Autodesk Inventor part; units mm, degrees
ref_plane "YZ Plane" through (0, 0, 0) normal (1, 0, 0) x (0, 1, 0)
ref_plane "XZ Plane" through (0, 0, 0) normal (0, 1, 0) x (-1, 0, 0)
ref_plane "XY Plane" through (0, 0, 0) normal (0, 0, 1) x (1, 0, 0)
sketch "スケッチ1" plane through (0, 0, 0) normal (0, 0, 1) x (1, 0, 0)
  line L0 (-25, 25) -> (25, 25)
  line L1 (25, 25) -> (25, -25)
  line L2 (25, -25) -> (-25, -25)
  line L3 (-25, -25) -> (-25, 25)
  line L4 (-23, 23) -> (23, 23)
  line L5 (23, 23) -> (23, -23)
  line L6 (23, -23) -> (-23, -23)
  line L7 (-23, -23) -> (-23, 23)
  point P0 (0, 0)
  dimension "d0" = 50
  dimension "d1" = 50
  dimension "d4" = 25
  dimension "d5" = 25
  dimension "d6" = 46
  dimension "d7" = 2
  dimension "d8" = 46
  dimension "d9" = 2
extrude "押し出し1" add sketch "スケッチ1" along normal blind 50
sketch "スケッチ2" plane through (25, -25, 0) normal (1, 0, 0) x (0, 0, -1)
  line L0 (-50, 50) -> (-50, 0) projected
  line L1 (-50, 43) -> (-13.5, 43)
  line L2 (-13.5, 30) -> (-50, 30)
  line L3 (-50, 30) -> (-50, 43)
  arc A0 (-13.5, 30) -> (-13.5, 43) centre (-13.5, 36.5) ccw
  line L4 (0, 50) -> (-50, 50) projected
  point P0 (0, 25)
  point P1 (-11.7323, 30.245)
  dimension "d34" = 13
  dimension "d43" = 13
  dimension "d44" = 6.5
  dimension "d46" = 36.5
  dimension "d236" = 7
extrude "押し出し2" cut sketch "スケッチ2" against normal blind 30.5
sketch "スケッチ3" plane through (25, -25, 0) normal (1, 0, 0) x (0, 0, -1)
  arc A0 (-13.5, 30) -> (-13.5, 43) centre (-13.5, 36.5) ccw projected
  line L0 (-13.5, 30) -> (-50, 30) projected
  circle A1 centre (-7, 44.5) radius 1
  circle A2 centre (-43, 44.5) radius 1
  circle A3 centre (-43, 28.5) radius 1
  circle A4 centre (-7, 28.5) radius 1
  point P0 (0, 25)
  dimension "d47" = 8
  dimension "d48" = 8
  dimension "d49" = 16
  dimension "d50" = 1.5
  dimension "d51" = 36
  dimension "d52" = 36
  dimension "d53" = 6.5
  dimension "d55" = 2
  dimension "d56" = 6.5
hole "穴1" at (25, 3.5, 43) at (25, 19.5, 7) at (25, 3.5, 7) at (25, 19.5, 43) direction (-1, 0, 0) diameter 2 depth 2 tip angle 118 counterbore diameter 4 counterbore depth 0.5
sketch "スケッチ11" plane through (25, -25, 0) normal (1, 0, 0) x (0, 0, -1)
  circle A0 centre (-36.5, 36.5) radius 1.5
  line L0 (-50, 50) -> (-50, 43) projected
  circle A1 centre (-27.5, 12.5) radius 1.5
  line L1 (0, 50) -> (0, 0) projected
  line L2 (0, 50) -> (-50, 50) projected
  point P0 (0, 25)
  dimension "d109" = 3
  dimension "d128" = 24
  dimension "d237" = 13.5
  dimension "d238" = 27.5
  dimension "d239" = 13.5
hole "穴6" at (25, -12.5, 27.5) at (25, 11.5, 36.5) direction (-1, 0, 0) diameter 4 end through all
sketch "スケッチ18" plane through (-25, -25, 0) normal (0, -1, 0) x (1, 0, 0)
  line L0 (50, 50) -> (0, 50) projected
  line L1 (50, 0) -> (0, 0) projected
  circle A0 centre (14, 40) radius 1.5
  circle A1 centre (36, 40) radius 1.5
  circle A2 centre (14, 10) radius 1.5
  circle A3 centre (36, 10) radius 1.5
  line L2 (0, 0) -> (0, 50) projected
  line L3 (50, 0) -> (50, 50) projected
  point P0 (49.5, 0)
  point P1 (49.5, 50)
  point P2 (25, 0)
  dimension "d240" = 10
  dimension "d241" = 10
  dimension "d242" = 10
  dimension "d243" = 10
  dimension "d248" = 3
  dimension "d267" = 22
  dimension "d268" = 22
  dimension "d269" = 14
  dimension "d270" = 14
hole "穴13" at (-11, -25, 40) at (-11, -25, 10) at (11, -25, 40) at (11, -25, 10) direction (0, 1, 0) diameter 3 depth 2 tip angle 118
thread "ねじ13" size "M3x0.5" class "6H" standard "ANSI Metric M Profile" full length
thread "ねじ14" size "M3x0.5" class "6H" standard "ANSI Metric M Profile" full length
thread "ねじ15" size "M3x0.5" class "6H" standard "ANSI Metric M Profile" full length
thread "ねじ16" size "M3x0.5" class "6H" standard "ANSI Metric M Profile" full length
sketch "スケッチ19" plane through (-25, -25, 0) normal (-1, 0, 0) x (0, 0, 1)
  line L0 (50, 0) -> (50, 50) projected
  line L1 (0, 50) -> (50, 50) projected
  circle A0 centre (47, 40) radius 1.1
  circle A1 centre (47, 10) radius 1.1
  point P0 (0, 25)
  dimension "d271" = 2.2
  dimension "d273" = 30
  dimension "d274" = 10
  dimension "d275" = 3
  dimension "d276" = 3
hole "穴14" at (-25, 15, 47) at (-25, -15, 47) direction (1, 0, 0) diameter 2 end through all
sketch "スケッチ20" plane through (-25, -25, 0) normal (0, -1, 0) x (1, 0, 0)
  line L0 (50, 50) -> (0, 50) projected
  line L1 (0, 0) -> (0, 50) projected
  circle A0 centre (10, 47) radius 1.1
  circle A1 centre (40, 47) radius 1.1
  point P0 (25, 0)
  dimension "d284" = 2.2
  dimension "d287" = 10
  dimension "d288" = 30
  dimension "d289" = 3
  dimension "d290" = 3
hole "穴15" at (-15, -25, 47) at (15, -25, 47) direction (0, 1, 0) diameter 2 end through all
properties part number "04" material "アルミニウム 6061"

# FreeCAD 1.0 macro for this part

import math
import FreeCAD as App
import Part
import Sketcher
from FreeCAD import Vector
Q = App.Units.Quantity


def add_polygon(sketch, points):
    """Adds a closed chain of lines whose ends are joined by coincident constraints."""
    first, n = sketch.GeometryCount, len(points)
    for a, b in zip(points, points[1:] + points[:1]):
        sketch.addGeometry(Part.LineSegment(App.Vector(*a, 0), App.Vector(*b, 0)), False)
    for i in range(n):
        sketch.addConstraint(Sketcher.Constraint("Coincident", first + i, 2, first + (i + 1) % n, 1))

doc = App.newDocument("Part")
params = doc.addObject("Spreadsheet::Sheet", "Params")
for row, (alias, value) in enumerate([
    ("sketch1_width", "50 mm"),
    ("sketch1_width2", "46 mm"),
    ("pad1_length", "50 mm"),
    ("sketch2_radius", "6.5 mm"),
    ("sketch2_height", "36.5 mm"),
    ("pocket1_length", "30.5 mm"),
    ("sketch3_diameter", "2 mm"),
    ("hole_diameter", "2 mm"),
    ("hole_depth", "2 mm"),
    ("hole_cbore_diameter", "4 mm"),
    ("hole_cbore_depth", "0.5 mm"),
    ("sketch4_diameter", "4 mm"),
    ("hole2_diameter", "4 mm"),
    ("sketch5_diameter", "3 mm"),
    ("hole3_diameter", "3 mm"),
    ("hole3_depth", "2 mm"),
    ("sketch6_diameter", "2 mm"),
    ("hole4_diameter", "2 mm"),
    ("sketch7_diameter", "2 mm"),
    ("hole5_diameter", "2 mm"),
], start=1):
    params.set(f"A{row}", alias)
    params.set(f"B{row}", "=" + value)
    params.setAlias(f"B{row}", alias)

body = doc.addObject("PartDesign::Body", "Body")

# Sketch on XY plane
sketch1 = body.newObject("Sketcher::SketchObject", "Sketch")
sketch1.AttachmentSupport = (doc.getObject("XY_Plane"), [""])
sketch1.MapMode = "FlatFace"
add_polygon(sketch1, [(25, 25), (-25, 25), (-25, -25), (25, -25)])  # lines 0-3
add_polygon(sketch1, [(-23, -23), (-23, 23), (23, 23), (23, -23)])  # lines 4-7
sketch1.addConstraint(Sketcher.Constraint("Horizontal", 0))
sketch1.addConstraint(Sketcher.Constraint("Vertical", 1))
sketch1.addConstraint(Sketcher.Constraint("Horizontal", 2))
sketch1.addConstraint(Sketcher.Constraint("Vertical", 3))
sketch1.addConstraint(Sketcher.Constraint("Vertical", 4))
sketch1.addConstraint(Sketcher.Constraint("Horizontal", 5))
sketch1.addConstraint(Sketcher.Constraint("Vertical", 6))
sketch1.addConstraint(Sketcher.Constraint("Horizontal", 7))
sketch1.addConstraint(Sketcher.Constraint("Symmetric", 0, 2, 2, 2, -1, 1))
sketch1.addConstraint(Sketcher.Constraint("Symmetric", 4, 2, 6, 2, -1, 1))
sketch1.addConstraint(Sketcher.Constraint("Equal", 2, 1))
sketch1.addConstraint(Sketcher.Constraint("Equal", 7, 4))
sketch1.addConstraint(Sketcher.Constraint("DistanceX", 0, 2, 0, 1, Q("50 mm")))
sketch1.addConstraint(Sketcher.Constraint("DistanceX", 5, 1, 5, 2, Q("46 mm")))
sketch1.setExpression("Constraints[20]", "Params.sketch1_width")
sketch1.setExpression("Constraints[21]", "Params.sketch1_width2")
pad1 = body.newObject("PartDesign::Pad", "Pad")
pad1.Profile = sketch1
pad1.setExpression("Length", "Params.pad1_length")

# Sketch on YZ plane
sketch2 = body.newObject("Sketcher::SketchObject", "Sketch001")
sketch2.AttachmentSupport = (doc.getObject("YZ_Plane"), [""])
sketch2.MapMode = "FlatFace"
sketch2.AttachmentOffset = App.Placement(Vector(0, 0, 25), App.Rotation())
sketch2.addGeometry(Part.LineSegment(Vector(18, 14, 0), Vector(18, 50, 0)), False)
sketch2.addGeometry(Part.LineSegment(Vector(18, 50, 0), Vector(5, 50, 0)), False)
sketch2.addGeometry(Part.LineSegment(Vector(5, 50, 0), Vector(5, 14, 0)), False)
sketch2.addGeometry(Part.ArcOfCircle(Part.Circle(Vector(12, 14, 0), Vector(0, 0, 1), 6), math.radians(180), math.radians(360)), False)
sketch2.addConstraint(Sketcher.Constraint("Coincident", 0, 2, 1, 1))
sketch2.addConstraint(Sketcher.Constraint("Coincident", 1, 2, 2, 1))
sketch2.addConstraint(Sketcher.Constraint("Tangent", 2, 2, 3, 1))
sketch2.addConstraint(Sketcher.Constraint("Tangent", 3, 2, 0, 1))
sketch2.addConstraint(Sketcher.Constraint("Vertical", 0))
sketch2.addConstraint(Sketcher.Constraint("Horizontal", 1))
sketch2.addConstraint(Sketcher.Constraint("Vertical", 2))
sketch2.addConstraint(Sketcher.Constraint("Radius", 3, Q("6.5 mm")))
sketch2.addConstraint(Sketcher.Constraint("DistanceY", 0, 1, 0, 2, Q("36.5 mm")))
sketch2.addConstraint(Sketcher.Constraint("DistanceX", -1, 1, 0, 2, Q("18 mm")))
sketch2.addConstraint(Sketcher.Constraint("DistanceY", -1, 1, 0, 2, Q("50 mm")))
sketch2.setExpression("Constraints[7]", "Params.sketch2_radius")
sketch2.setExpression("Constraints[8]", "Params.sketch2_height")
pocket1 = body.newObject("PartDesign::Pocket", "Pocket")
pocket1.Profile = sketch2
pocket1.setExpression("Length", "Params.pocket1_length")

# Sketch on YZ plane
sketch3 = body.newObject("Sketcher::SketchObject", "Sketch002")
sketch3.AttachmentSupport = (doc.getObject("YZ_Plane"), [""])
sketch3.MapMode = "FlatFace"
sketch3.AttachmentOffset = App.Placement(Vector(0, 0, 25), App.Rotation())
sketch3.addGeometry(Part.Circle(Vector(3.5, 43, 0), Vector(0, 0, 1), 1), False)
sketch3.addGeometry(Part.Circle(Vector(19.5, 7, 0), Vector(0, 0, 1), 1), False)
sketch3.addGeometry(Part.Circle(Vector(3.5, 7, 0), Vector(0, 0, 1), 1), False)
sketch3.addGeometry(Part.Circle(Vector(19.5, 43, 0), Vector(0, 0, 1), 1), False)
sketch3.addConstraint(Sketcher.Constraint("Equal", 0, 1))
sketch3.addConstraint(Sketcher.Constraint("Equal", 1, 2))
sketch3.addConstraint(Sketcher.Constraint("Equal", 2, 3))
sketch3.addConstraint(Sketcher.Constraint("Horizontal", 1, 3, 2, 3))
sketch3.addConstraint(Sketcher.Constraint("Horizontal", 0, 3, 3, 3))
sketch3.addConstraint(Sketcher.Constraint("Vertical", 0, 3, 2, 3))
sketch3.addConstraint(Sketcher.Constraint("Vertical", 1, 3, 3, 3))
sketch3.addConstraint(Sketcher.Constraint("Diameter", 0, Q("2 mm")))
sketch3.addConstraint(Sketcher.Constraint("DistanceY", -1, 1, 0, 3, Q("43 mm")))
sketch3.addConstraint(Sketcher.Constraint("DistanceY", -1, 1, 1, 3, Q("7 mm")))
sketch3.addConstraint(Sketcher.Constraint("DistanceX", 0, 3, 1, 3, Q("16 mm")))
sketch3.addConstraint(Sketcher.Constraint("DistanceX", -1, 1, 0, 3, Q("3.5 mm")))
sketch3.setExpression("Constraints[7]", "Params.sketch3_diameter")
doc.recompute()
hole = body.newObject("PartDesign::Hole", "Hole")
hole.Profile = sketch3
hole.ThreadType = "None"
hole.setExpression("Diameter", "Params.hole_diameter")
hole.DepthType = "Dimension"
hole.setExpression("Depth", "Params.hole_depth")
hole.DrillPoint = "Angled"
hole.DrillPointAngle = 118
hole.HoleCutType = "Counterbore"
hole.setExpression("HoleCutDiameter", "Params.hole_cbore_diameter")
hole.setExpression("HoleCutDepth", "Params.hole_cbore_depth")

# Sketch on YZ plane
sketch4 = body.newObject("Sketcher::SketchObject", "Sketch003")
sketch4.AttachmentSupport = (doc.getObject("YZ_Plane"), [""])
sketch4.MapMode = "FlatFace"
sketch4.AttachmentOffset = App.Placement(Vector(0, 0, 25), App.Rotation())
sketch4.addGeometry(Part.Circle(Vector(-12.5, 27.5, 0), Vector(0, 0, 1), 2), False)
sketch4.addGeometry(Part.Circle(Vector(11.5, 36.5, 0), Vector(0, 0, 1), 2), False)
sketch4.addConstraint(Sketcher.Constraint("Equal", 0, 1))
sketch4.addConstraint(Sketcher.Constraint("Diameter", 0, Q("4 mm")))
sketch4.addConstraint(Sketcher.Constraint("DistanceX", 0, 3, 1, 3, Q("24 mm")))
sketch4.addConstraint(Sketcher.Constraint("DistanceY", 0, 3, 1, 3, Q("9 mm")))
sketch4.addConstraint(Sketcher.Constraint("DistanceX", 0, 3, -1, 1, Q("12.5 mm")))
sketch4.addConstraint(Sketcher.Constraint("DistanceY", -1, 1, 0, 3, Q("27.5 mm")))
sketch4.setExpression("Constraints[1]", "Params.sketch4_diameter")
doc.recompute()
hole2 = body.newObject("PartDesign::Hole", "Hole001")
hole2.Profile = sketch4
hole2.ThreadType = "None"
hole2.setExpression("Diameter", "Params.hole2_diameter")
hole2.DepthType = "ThroughAll"

# Sketch on XZ plane
sketch5 = body.newObject("Sketcher::SketchObject", "Sketch004")
sketch5.AttachmentSupport = (doc.getObject("XZ_Plane"), [""])
sketch5.MapMode = "FlatFace"
sketch5.AttachmentOffset = App.Placement(Vector(0, 0, 25), App.Rotation())
sketch5.addGeometry(Part.Circle(Vector(-11, 40, 0), Vector(0, 0, 1), 1.5), False)
sketch5.addGeometry(Part.Circle(Vector(-11, 10, 0), Vector(0, 0, 1), 1.5), False)
sketch5.addGeometry(Part.Circle(Vector(11, 40, 0), Vector(0, 0, 1), 1.5), False)
sketch5.addGeometry(Part.Circle(Vector(11, 10, 0), Vector(0, 0, 1), 1.5), False)
sketch5.addConstraint(Sketcher.Constraint("Equal", 0, 1))
sketch5.addConstraint(Sketcher.Constraint("Equal", 1, 2))
sketch5.addConstraint(Sketcher.Constraint("Equal", 2, 3))
sketch5.addConstraint(Sketcher.Constraint("Symmetric", 0, 3, 2, 3, -2))
sketch5.addConstraint(Sketcher.Constraint("Symmetric", 1, 3, 3, 3, -2))
sketch5.addConstraint(Sketcher.Constraint("Vertical", 0, 3, 1, 3))
sketch5.addConstraint(Sketcher.Constraint("Diameter", 0, Q("3 mm")))
sketch5.addConstraint(Sketcher.Constraint("DistanceX", 0, 3, -1, 1, Q("11 mm")))
sketch5.addConstraint(Sketcher.Constraint("DistanceY", -1, 1, 0, 3, Q("40 mm")))
sketch5.addConstraint(Sketcher.Constraint("DistanceY", -1, 1, 1, 3, Q("10 mm")))
sketch5.setExpression("Constraints[6]", "Params.sketch5_diameter")
doc.recompute()
hole3 = body.newObject("PartDesign::Hole", "Hole002")
hole3.Profile = sketch5
hole3.ThreadType = "None"
hole3.setExpression("Diameter", "Params.hole3_diameter")
hole3.DepthType = "Dimension"
hole3.setExpression("Depth", "Params.hole3_depth")
hole3.DrillPoint = "Angled"
hole3.DrillPointAngle = 118

# Sketch on YZ plane
sketch6 = body.newObject("Sketcher::SketchObject", "Sketch005")
sketch6.AttachmentSupport = (doc.getObject("YZ_Plane"), [""])
sketch6.MapMode = "FlatFace"
sketch6.AttachmentOffset = App.Placement(Vector(0, 0, -25), App.Rotation())
sketch6.addGeometry(Part.Circle(Vector(15, 47, 0), Vector(0, 0, 1), 1), False)
sketch6.addGeometry(Part.Circle(Vector(-15, 47, 0), Vector(0, 0, 1), 1), False)
sketch6.addConstraint(Sketcher.Constraint("Equal", 0, 1))
sketch6.addConstraint(Sketcher.Constraint("Symmetric", 0, 3, 1, 3, -2))
sketch6.addConstraint(Sketcher.Constraint("Diameter", 0, Q("2 mm")))
sketch6.addConstraint(Sketcher.Constraint("DistanceX", -1, 1, 0, 3, Q("15 mm")))
sketch6.addConstraint(Sketcher.Constraint("DistanceY", -1, 1, 0, 3, Q("47 mm")))
sketch6.setExpression("Constraints[2]", "Params.sketch6_diameter")
doc.recompute()
hole4 = body.newObject("PartDesign::Hole", "Hole003")
hole4.Profile = sketch6
hole4.ThreadType = "None"
hole4.setExpression("Diameter", "Params.hole4_diameter")
hole4.DepthType = "ThroughAll"
hole4.Reversed = True

# Sketch on XZ plane
sketch7 = body.newObject("Sketcher::SketchObject", "Sketch006")
sketch7.AttachmentSupport = (doc.getObject("XZ_Plane"), [""])
sketch7.MapMode = "FlatFace"
sketch7.AttachmentOffset = App.Placement(Vector(0, 0, 25), App.Rotation())
sketch7.addGeometry(Part.Circle(Vector(-15, 47, 0), Vector(0, 0, 1), 1), False)
sketch7.addGeometry(Part.Circle(Vector(15, 47, 0), Vector(0, 0, 1), 1), False)
sketch7.addConstraint(Sketcher.Constraint("Equal", 0, 1))
sketch7.addConstraint(Sketcher.Constraint("Symmetric", 0, 3, 1, 3, -2))
sketch7.addConstraint(Sketcher.Constraint("Diameter", 0, Q("2 mm")))
sketch7.addConstraint(Sketcher.Constraint("DistanceX", 0, 3, -1, 1, Q("15 mm")))
sketch7.addConstraint(Sketcher.Constraint("DistanceY", -1, 1, 0, 3, Q("47 mm")))
sketch7.setExpression("Constraints[2]", "Params.sketch7_diameter")
doc.recompute()
hole5 = body.newObject("PartDesign::Hole", "Hole004")
hole5.Profile = sketch7
hole5.ThreadType = "None"
hole5.setExpression("Diameter", "Params.hole5_diameter")
hole5.DepthType = "ThroughAll"

doc.recompute()
